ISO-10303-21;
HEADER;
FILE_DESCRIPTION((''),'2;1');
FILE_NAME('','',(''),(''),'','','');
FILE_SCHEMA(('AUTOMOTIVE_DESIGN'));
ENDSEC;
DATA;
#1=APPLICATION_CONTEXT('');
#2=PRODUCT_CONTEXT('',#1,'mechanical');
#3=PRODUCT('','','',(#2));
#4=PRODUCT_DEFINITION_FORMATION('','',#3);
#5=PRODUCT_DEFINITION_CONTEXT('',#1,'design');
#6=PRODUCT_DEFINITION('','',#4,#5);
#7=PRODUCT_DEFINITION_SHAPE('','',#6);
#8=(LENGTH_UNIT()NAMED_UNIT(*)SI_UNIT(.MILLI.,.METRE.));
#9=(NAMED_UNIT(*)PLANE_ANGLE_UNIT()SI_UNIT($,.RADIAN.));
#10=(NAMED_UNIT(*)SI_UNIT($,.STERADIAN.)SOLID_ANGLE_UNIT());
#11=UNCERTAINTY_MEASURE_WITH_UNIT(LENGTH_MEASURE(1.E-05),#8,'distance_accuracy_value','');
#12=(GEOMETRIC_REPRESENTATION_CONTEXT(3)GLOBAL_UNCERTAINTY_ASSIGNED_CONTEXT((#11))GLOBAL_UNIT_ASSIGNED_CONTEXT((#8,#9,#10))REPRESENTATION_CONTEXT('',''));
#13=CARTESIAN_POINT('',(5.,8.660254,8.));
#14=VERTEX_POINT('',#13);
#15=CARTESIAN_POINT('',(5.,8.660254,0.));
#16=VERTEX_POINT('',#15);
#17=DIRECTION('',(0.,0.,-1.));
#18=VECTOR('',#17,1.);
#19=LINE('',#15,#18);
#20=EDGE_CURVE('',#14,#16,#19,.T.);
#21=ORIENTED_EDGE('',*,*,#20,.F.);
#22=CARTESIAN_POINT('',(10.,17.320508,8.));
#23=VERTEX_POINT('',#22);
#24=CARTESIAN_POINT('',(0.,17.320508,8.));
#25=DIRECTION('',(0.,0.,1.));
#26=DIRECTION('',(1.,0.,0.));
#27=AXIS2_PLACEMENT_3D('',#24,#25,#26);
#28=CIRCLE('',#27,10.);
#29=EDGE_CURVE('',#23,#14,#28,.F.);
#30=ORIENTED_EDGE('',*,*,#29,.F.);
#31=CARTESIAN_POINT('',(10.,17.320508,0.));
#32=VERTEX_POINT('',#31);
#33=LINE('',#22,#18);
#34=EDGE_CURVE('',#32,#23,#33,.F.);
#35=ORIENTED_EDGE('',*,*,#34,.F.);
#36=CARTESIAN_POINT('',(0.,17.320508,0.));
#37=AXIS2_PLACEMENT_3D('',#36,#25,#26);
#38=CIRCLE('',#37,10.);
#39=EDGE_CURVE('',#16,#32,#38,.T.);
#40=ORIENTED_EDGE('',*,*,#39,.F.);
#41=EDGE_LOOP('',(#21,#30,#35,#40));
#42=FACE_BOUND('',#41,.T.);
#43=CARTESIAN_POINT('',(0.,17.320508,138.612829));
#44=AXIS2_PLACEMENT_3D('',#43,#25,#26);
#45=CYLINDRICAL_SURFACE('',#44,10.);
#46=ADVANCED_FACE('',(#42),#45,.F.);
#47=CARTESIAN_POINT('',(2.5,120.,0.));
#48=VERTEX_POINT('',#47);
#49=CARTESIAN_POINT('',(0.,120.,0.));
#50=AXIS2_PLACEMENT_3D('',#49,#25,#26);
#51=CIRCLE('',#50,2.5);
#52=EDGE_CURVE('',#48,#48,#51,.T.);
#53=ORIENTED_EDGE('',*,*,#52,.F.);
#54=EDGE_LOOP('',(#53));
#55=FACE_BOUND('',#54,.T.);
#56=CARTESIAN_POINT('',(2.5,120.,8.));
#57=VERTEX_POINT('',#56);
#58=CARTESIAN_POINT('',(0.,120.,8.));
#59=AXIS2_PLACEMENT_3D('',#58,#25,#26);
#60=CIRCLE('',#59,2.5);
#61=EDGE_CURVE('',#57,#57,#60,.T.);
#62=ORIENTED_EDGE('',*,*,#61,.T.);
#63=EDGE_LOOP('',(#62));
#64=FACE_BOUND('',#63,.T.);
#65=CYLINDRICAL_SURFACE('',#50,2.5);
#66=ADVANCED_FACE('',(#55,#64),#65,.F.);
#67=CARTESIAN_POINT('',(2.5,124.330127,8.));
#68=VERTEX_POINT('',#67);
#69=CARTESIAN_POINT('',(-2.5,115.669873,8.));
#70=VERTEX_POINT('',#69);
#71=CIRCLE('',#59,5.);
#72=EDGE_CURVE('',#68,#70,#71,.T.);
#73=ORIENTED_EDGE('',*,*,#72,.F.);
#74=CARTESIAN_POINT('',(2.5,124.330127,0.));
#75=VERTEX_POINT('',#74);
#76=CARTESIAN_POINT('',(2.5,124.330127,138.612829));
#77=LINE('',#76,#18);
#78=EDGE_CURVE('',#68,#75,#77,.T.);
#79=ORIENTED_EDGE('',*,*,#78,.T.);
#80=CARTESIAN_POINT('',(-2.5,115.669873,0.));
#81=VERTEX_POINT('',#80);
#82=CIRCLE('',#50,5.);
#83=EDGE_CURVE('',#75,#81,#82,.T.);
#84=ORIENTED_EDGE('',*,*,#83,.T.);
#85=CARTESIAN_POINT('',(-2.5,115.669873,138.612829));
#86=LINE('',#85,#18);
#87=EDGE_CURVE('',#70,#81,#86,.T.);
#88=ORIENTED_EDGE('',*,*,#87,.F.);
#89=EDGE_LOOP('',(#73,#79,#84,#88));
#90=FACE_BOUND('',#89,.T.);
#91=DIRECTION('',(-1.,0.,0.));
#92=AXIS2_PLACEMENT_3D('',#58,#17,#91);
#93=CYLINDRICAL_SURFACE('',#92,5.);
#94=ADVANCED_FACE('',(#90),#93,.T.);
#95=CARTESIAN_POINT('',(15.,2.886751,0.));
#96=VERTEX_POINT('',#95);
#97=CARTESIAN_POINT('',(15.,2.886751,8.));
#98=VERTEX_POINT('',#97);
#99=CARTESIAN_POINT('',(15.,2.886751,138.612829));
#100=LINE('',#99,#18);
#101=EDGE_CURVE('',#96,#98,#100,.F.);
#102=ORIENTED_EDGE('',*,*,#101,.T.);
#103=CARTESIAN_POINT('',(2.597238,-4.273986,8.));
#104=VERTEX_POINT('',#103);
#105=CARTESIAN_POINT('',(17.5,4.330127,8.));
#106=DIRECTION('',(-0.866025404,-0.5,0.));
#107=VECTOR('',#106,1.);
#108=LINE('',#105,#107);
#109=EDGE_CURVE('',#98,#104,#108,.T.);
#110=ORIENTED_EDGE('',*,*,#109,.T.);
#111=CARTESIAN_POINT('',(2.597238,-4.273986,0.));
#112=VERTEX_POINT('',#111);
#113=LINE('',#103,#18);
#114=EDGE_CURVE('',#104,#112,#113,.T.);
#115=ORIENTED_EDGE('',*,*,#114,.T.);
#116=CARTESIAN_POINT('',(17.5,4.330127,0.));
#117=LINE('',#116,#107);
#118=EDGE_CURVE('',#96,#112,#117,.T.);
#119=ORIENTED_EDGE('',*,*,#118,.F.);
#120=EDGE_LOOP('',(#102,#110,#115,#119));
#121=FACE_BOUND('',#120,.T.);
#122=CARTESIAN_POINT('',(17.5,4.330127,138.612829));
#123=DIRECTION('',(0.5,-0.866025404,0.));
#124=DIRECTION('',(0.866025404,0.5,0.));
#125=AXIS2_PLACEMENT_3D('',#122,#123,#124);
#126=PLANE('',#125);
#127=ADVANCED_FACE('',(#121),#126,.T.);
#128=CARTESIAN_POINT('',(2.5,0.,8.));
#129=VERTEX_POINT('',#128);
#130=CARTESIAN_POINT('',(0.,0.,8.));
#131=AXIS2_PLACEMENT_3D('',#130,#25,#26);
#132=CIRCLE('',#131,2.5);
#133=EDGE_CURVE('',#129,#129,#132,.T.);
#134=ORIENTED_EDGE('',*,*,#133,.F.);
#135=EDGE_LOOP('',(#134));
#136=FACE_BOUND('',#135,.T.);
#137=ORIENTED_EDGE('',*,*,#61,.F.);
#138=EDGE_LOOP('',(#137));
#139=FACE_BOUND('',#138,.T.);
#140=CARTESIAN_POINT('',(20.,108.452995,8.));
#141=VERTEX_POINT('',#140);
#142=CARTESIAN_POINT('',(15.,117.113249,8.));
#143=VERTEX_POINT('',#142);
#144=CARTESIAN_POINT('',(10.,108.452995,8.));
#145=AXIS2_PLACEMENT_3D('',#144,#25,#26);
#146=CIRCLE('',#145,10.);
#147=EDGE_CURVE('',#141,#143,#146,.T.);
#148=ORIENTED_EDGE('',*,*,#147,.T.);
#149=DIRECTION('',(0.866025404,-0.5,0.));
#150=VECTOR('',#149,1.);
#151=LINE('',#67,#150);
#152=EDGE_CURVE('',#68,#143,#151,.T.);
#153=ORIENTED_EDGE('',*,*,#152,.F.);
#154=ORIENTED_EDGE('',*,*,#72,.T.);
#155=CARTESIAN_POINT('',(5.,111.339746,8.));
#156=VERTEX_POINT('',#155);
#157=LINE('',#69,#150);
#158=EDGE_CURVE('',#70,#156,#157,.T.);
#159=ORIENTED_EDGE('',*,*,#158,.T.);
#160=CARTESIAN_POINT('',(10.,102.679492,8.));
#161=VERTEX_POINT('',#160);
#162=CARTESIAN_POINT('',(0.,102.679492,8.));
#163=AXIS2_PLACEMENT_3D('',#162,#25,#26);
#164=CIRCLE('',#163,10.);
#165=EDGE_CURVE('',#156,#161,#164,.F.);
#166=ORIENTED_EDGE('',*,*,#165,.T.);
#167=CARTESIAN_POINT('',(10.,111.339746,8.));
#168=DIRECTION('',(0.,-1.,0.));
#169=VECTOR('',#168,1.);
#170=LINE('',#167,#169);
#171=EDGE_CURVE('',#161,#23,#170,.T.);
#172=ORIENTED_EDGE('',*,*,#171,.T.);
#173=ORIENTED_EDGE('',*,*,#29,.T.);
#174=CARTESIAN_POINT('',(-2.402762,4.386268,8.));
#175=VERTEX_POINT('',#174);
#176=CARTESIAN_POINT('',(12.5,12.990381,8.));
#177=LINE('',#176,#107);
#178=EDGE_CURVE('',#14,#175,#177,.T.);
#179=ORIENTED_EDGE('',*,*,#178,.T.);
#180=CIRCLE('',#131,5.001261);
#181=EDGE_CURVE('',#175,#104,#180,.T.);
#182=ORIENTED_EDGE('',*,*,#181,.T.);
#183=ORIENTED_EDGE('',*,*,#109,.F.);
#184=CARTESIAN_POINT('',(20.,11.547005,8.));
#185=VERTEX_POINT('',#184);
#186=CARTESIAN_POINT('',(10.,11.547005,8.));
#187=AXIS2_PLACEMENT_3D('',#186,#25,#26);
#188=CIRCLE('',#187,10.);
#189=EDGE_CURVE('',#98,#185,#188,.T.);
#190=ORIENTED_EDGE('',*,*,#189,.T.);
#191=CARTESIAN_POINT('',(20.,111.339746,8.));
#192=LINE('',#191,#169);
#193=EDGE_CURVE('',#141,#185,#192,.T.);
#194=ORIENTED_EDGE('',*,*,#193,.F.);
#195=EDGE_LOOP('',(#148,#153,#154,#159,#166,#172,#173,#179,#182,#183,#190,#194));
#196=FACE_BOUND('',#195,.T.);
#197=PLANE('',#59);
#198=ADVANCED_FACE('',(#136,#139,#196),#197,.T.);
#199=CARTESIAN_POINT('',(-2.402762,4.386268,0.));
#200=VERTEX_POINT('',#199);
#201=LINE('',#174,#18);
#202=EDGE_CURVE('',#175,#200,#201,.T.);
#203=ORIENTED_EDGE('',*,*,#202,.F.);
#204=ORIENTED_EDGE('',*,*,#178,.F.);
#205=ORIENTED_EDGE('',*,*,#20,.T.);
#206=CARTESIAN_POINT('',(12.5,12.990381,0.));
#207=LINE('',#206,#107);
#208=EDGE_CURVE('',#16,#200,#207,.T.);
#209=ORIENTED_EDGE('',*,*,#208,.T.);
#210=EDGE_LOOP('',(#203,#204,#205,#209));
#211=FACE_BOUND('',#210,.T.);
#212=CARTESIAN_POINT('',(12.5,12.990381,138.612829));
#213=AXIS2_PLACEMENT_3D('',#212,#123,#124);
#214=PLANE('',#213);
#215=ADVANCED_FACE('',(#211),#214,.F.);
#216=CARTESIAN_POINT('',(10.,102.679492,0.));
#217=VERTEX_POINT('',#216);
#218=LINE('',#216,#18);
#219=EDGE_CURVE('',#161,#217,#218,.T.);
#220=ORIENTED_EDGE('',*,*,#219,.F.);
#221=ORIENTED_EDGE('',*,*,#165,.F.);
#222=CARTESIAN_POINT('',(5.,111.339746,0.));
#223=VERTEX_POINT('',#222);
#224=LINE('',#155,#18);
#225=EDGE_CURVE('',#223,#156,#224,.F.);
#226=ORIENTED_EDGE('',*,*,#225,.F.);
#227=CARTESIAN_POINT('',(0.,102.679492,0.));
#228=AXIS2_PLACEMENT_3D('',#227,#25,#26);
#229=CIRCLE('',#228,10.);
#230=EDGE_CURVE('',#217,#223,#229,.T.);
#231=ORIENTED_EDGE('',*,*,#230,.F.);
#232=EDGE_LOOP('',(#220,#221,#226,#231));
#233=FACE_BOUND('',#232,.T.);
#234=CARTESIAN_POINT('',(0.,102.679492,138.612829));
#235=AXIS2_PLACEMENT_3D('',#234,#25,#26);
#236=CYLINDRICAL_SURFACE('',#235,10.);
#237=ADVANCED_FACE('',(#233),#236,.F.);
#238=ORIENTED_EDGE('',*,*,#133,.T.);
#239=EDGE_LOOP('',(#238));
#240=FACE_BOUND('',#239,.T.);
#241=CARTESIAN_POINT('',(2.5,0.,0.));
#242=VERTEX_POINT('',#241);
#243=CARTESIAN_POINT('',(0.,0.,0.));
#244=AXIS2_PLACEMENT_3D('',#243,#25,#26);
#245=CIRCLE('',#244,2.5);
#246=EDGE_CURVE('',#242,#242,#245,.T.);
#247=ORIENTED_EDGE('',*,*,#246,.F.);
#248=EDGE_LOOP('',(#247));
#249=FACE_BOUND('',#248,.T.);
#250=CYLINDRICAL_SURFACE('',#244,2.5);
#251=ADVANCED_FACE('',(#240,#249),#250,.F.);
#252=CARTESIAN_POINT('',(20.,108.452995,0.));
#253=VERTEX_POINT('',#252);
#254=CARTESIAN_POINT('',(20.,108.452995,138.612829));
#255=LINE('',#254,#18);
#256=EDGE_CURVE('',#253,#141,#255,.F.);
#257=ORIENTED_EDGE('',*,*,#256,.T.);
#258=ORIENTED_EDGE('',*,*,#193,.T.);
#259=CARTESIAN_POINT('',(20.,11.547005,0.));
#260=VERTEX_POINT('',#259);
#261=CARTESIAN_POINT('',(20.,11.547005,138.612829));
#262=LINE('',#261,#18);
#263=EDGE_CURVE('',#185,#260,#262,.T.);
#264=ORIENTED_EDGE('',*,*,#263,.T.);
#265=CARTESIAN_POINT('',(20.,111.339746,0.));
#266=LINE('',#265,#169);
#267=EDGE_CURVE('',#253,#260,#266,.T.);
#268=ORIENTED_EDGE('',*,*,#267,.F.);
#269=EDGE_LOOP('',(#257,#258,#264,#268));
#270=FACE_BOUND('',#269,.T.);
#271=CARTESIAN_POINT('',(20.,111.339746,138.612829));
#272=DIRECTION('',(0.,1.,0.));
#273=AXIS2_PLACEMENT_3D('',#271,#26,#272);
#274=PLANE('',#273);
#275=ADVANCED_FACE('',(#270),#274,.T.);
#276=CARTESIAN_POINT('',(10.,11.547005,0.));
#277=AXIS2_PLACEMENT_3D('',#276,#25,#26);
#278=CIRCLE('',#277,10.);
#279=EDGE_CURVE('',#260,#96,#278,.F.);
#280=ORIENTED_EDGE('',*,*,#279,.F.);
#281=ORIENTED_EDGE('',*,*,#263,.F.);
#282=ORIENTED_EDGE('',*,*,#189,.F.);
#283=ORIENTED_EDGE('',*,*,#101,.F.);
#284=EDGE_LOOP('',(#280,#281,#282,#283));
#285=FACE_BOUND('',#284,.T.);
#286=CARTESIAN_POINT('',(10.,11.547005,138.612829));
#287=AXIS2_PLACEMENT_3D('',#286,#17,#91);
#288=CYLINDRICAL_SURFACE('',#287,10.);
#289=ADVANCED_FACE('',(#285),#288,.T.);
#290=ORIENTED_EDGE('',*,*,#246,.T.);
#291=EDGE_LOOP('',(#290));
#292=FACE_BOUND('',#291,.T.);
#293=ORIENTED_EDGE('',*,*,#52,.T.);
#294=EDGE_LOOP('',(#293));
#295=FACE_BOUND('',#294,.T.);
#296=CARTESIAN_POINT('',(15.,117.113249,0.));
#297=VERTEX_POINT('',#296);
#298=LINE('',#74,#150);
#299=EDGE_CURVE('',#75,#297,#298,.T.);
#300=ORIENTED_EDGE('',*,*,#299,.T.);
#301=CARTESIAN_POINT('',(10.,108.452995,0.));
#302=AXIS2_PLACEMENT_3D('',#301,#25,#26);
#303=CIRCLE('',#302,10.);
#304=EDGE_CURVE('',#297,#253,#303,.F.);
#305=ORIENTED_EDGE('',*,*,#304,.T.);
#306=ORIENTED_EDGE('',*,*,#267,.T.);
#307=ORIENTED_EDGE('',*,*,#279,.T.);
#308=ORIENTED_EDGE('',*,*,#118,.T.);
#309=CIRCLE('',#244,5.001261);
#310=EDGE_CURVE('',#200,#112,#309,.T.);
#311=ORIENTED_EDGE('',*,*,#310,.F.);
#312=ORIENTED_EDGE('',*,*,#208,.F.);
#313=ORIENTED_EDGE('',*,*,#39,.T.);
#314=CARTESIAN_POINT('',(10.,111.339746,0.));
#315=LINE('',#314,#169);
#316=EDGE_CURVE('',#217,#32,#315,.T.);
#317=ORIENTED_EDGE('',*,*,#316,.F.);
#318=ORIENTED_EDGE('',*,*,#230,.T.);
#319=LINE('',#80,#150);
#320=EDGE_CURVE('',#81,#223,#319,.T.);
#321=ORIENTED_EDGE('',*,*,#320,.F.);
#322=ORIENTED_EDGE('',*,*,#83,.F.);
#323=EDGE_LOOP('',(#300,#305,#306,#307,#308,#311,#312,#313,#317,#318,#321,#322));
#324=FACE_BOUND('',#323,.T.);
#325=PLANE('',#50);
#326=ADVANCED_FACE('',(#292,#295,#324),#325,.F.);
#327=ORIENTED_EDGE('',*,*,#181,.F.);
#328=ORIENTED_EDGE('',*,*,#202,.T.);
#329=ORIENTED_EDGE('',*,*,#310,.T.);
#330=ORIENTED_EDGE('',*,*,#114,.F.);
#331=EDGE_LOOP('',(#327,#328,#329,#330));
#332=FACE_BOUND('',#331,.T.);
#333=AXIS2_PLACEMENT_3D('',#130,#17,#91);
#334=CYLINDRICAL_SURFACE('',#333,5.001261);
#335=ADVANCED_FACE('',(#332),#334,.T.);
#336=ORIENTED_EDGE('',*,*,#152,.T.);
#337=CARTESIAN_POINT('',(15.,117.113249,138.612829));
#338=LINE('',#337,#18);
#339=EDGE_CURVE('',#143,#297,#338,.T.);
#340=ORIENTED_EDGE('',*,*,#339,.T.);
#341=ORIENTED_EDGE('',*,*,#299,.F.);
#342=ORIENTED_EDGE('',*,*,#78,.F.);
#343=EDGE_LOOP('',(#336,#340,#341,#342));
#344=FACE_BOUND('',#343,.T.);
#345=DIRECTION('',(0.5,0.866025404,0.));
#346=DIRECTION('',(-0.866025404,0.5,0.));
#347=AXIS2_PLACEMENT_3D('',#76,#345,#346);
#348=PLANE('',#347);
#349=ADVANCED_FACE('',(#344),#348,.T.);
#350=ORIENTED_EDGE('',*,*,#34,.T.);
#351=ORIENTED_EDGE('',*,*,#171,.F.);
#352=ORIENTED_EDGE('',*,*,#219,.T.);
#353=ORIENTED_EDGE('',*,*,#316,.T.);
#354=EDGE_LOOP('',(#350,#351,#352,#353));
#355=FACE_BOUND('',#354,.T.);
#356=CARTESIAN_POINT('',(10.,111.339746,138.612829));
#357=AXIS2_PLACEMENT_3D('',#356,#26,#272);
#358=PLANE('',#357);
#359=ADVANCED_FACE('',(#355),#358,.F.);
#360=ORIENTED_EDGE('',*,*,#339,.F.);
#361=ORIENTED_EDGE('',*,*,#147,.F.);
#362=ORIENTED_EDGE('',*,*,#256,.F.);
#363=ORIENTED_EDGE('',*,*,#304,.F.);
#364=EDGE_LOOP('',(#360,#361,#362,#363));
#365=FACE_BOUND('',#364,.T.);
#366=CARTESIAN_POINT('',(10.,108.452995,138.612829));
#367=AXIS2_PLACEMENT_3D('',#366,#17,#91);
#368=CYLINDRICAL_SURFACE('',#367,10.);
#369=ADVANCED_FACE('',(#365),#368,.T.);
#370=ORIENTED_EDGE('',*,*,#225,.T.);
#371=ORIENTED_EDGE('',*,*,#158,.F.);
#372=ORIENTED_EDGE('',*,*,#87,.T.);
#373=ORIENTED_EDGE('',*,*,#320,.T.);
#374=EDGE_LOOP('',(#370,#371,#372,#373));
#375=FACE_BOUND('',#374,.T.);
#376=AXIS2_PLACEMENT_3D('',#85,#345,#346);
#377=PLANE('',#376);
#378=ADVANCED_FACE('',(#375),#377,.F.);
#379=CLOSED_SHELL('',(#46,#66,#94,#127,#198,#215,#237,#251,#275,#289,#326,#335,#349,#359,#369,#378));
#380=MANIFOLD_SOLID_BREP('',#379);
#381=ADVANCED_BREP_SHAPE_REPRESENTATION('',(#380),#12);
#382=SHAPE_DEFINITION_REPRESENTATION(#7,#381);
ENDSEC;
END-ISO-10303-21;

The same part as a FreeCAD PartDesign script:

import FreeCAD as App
import Part
import Sketcher
from FreeCAD import Vector
Q = App.Units.Quantity


def edges_at(feature, points):
    """Names of the edges that pass closest to the given points."""
    edges = feature.Shape.Edges
    near = lambda p: min(range(len(edges)), key=lambda i: edges[i].distToShape(Part.Vertex(*p))[0])
    return sorted({f"Edge{near(p) + 1}" for p in points})


def add_polygon(sketch, points):
    """Adds a closed chain of lines whose ends are joined by coincident constraints."""
    first, n = sketch.GeometryCount, len(points)
    for a, b in zip(points, points[1:] + points[:1]):
        sketch.addGeometry(Part.LineSegment(App.Vector(*a, 0), App.Vector(*b, 0)), False)
    for i in range(n):
        sketch.addConstraint(Sketcher.Constraint("Coincident", first + i, 2, first + (i + 1) % n, 1))

doc = App.newDocument("Part")
body = doc.addObject("PartDesign::Body", "Body")

# Sketch on XY plane
sketch1 = doc.addObject("Sketcher::SketchObject", "Sketch")
body.addObject(sketch1)
sketch1.AttachmentSupport = (doc.XY_Plane, [""])
sketch1.MapMode = "FlatFace"
sketch1.addGeometry(Part.Circle(Vector(0, 120, 0), Vector(0, 0, 1), 5), False)
sketch1.addConstraint([
    Sketcher.Constraint("PointOnObject", 0, 3, -2),
    Sketcher.Constraint("Diameter", 0, 10.0),
    Sketcher.Constraint("DistanceY", -1, 1, 0, 3, 120.0),
])
pad1 = doc.addObject("PartDesign::Pad", "Pad")
body.addObject(pad1)
pad1.Profile = sketch1
pad1.Length = 8
body2 = doc.addObject("PartDesign::Body", "Body001")

# Sketch on XY plane
sketch2 = doc.addObject("Sketcher::SketchObject", "Sketch001")
body2.addObject(sketch2)
sketch2.AttachmentSupport = (doc.getObject("XY_Plane001"), [""])
sketch2.MapMode = "FlatFace"
sketch2.addGeometry(Part.Circle(Vector(0, 0, 0), Vector(0, 0, 1), 5), False)
sketch2.addConstraint([
    Sketcher.Constraint("Coincident", 0, 3, -1, 1),
    Sketcher.Constraint("Diameter", 0, 10.002521),
])
pad2 = doc.addObject("PartDesign::Pad", "Pad001")
body2.addObject(pad2)
pad2.Profile = sketch2
pad2.Length = 8
body.AllowCompound = True
doc.recompute()

boolean = doc.addObject("PartDesign::Boolean", "Boolean")
body.addObject(boolean)
boolean.Type = "Fuse"
boolean.addObjects([body2])

# Sketch on XY plane
sketch3 = doc.addObject("Sketcher::SketchObject", "Sketch002")
body.addObject(sketch3)
sketch3.AttachmentSupport = (doc.XY_Plane, [""])
sketch3.MapMode = "FlatFace"
add_polygon(sketch3, [(-2, 116), (10, 108), (10, 12), (-2, 4), (2, -4), (20, 6), (20, 114), (2, 124)])  # lines 0-7
sketch3.addConstraint([
    Sketcher.Constraint("Vertical", 1),
    Sketcher.Constraint("Vertical", 5),
    Sketcher.Constraint("Symmetric", 2, 2, 3, 2, -1, 1),
    Sketcher.Constraint("Perpendicular", 2, 3),
    Sketcher.Constraint("Perpendicular", 3, 4),
    Sketcher.Constraint("Parallel", 0, 6),
    Sketcher.Constraint("Perpendicular", 6, 7),
    Sketcher.Constraint("Vertical", 3, 2, 6, 2),
    Sketcher.Constraint("Vertical", 2, 2, 7, 2),
    Sketcher.Constraint("Equal", 0, 2),
    Sketcher.Constraint("Angle", 0, Q("-30 deg")),
    Sketcher.Constraint("Distance", 3, 10.0),
    Sketcher.Constraint("DistanceX", -1, 1, 0, 2, 10.0),
    Sketcher.Constraint("DistanceX", -1, 1, 4, 2, 20.0),
    Sketcher.Constraint("DistanceY", 2, 2, 6, 2, 120.0),
])
pad3 = doc.addObject("PartDesign::Pad", "Pad002")
body.addObject(pad3)
pad3.Profile = sketch3
pad3.Length = 8

# Sketch on XY plane
sketch4 = doc.addObject("Sketcher::SketchObject", "Sketch003")
body.addObject(sketch4)
sketch4.AttachmentSupport = (doc.XY_Plane, [""])
sketch4.MapMode = "FlatFace"
sketch4.AttachmentOffset = App.Placement(Vector(0, 0, 8), App.Rotation())
sketch4.addGeometry([
    Part.Circle(Vector(0, 120, 0), Vector(0, 0, 1), 2.5),
    Part.Circle(Vector(0, 0, 0), Vector(0, 0, 1), 2.5),
], False)
sketch4.addConstraint([
    Sketcher.Constraint("Coincident", 1, 3, -1, 1),
    Sketcher.Constraint("Equal", 0, 1),
    Sketcher.Constraint("PointOnObject", 0, 3, -2),
    Sketcher.Constraint("Diameter", 0, 5.0),
    Sketcher.Constraint("DistanceY", -1, 1, 0, 3, 120.0),
])
pocket1 = doc.addObject("PartDesign::Pocket", "Pocket")
body.addObject(pocket1)
pocket1.Profile = sketch4
pocket1.Type = "ThroughAll"
doc.recompute()

fillet = doc.addObject("PartDesign::Fillet", "Fillet")
body.addObject(fillet)
fillet.Base = (pocket1, edges_at(pocket1, [
    (10, 11.547, 4),
    (20, 5.774, 4),
    (20, 114.226, 4),
    (10, 108.453, 4),
]))
fillet.Radius = 10

doc.recompute()
